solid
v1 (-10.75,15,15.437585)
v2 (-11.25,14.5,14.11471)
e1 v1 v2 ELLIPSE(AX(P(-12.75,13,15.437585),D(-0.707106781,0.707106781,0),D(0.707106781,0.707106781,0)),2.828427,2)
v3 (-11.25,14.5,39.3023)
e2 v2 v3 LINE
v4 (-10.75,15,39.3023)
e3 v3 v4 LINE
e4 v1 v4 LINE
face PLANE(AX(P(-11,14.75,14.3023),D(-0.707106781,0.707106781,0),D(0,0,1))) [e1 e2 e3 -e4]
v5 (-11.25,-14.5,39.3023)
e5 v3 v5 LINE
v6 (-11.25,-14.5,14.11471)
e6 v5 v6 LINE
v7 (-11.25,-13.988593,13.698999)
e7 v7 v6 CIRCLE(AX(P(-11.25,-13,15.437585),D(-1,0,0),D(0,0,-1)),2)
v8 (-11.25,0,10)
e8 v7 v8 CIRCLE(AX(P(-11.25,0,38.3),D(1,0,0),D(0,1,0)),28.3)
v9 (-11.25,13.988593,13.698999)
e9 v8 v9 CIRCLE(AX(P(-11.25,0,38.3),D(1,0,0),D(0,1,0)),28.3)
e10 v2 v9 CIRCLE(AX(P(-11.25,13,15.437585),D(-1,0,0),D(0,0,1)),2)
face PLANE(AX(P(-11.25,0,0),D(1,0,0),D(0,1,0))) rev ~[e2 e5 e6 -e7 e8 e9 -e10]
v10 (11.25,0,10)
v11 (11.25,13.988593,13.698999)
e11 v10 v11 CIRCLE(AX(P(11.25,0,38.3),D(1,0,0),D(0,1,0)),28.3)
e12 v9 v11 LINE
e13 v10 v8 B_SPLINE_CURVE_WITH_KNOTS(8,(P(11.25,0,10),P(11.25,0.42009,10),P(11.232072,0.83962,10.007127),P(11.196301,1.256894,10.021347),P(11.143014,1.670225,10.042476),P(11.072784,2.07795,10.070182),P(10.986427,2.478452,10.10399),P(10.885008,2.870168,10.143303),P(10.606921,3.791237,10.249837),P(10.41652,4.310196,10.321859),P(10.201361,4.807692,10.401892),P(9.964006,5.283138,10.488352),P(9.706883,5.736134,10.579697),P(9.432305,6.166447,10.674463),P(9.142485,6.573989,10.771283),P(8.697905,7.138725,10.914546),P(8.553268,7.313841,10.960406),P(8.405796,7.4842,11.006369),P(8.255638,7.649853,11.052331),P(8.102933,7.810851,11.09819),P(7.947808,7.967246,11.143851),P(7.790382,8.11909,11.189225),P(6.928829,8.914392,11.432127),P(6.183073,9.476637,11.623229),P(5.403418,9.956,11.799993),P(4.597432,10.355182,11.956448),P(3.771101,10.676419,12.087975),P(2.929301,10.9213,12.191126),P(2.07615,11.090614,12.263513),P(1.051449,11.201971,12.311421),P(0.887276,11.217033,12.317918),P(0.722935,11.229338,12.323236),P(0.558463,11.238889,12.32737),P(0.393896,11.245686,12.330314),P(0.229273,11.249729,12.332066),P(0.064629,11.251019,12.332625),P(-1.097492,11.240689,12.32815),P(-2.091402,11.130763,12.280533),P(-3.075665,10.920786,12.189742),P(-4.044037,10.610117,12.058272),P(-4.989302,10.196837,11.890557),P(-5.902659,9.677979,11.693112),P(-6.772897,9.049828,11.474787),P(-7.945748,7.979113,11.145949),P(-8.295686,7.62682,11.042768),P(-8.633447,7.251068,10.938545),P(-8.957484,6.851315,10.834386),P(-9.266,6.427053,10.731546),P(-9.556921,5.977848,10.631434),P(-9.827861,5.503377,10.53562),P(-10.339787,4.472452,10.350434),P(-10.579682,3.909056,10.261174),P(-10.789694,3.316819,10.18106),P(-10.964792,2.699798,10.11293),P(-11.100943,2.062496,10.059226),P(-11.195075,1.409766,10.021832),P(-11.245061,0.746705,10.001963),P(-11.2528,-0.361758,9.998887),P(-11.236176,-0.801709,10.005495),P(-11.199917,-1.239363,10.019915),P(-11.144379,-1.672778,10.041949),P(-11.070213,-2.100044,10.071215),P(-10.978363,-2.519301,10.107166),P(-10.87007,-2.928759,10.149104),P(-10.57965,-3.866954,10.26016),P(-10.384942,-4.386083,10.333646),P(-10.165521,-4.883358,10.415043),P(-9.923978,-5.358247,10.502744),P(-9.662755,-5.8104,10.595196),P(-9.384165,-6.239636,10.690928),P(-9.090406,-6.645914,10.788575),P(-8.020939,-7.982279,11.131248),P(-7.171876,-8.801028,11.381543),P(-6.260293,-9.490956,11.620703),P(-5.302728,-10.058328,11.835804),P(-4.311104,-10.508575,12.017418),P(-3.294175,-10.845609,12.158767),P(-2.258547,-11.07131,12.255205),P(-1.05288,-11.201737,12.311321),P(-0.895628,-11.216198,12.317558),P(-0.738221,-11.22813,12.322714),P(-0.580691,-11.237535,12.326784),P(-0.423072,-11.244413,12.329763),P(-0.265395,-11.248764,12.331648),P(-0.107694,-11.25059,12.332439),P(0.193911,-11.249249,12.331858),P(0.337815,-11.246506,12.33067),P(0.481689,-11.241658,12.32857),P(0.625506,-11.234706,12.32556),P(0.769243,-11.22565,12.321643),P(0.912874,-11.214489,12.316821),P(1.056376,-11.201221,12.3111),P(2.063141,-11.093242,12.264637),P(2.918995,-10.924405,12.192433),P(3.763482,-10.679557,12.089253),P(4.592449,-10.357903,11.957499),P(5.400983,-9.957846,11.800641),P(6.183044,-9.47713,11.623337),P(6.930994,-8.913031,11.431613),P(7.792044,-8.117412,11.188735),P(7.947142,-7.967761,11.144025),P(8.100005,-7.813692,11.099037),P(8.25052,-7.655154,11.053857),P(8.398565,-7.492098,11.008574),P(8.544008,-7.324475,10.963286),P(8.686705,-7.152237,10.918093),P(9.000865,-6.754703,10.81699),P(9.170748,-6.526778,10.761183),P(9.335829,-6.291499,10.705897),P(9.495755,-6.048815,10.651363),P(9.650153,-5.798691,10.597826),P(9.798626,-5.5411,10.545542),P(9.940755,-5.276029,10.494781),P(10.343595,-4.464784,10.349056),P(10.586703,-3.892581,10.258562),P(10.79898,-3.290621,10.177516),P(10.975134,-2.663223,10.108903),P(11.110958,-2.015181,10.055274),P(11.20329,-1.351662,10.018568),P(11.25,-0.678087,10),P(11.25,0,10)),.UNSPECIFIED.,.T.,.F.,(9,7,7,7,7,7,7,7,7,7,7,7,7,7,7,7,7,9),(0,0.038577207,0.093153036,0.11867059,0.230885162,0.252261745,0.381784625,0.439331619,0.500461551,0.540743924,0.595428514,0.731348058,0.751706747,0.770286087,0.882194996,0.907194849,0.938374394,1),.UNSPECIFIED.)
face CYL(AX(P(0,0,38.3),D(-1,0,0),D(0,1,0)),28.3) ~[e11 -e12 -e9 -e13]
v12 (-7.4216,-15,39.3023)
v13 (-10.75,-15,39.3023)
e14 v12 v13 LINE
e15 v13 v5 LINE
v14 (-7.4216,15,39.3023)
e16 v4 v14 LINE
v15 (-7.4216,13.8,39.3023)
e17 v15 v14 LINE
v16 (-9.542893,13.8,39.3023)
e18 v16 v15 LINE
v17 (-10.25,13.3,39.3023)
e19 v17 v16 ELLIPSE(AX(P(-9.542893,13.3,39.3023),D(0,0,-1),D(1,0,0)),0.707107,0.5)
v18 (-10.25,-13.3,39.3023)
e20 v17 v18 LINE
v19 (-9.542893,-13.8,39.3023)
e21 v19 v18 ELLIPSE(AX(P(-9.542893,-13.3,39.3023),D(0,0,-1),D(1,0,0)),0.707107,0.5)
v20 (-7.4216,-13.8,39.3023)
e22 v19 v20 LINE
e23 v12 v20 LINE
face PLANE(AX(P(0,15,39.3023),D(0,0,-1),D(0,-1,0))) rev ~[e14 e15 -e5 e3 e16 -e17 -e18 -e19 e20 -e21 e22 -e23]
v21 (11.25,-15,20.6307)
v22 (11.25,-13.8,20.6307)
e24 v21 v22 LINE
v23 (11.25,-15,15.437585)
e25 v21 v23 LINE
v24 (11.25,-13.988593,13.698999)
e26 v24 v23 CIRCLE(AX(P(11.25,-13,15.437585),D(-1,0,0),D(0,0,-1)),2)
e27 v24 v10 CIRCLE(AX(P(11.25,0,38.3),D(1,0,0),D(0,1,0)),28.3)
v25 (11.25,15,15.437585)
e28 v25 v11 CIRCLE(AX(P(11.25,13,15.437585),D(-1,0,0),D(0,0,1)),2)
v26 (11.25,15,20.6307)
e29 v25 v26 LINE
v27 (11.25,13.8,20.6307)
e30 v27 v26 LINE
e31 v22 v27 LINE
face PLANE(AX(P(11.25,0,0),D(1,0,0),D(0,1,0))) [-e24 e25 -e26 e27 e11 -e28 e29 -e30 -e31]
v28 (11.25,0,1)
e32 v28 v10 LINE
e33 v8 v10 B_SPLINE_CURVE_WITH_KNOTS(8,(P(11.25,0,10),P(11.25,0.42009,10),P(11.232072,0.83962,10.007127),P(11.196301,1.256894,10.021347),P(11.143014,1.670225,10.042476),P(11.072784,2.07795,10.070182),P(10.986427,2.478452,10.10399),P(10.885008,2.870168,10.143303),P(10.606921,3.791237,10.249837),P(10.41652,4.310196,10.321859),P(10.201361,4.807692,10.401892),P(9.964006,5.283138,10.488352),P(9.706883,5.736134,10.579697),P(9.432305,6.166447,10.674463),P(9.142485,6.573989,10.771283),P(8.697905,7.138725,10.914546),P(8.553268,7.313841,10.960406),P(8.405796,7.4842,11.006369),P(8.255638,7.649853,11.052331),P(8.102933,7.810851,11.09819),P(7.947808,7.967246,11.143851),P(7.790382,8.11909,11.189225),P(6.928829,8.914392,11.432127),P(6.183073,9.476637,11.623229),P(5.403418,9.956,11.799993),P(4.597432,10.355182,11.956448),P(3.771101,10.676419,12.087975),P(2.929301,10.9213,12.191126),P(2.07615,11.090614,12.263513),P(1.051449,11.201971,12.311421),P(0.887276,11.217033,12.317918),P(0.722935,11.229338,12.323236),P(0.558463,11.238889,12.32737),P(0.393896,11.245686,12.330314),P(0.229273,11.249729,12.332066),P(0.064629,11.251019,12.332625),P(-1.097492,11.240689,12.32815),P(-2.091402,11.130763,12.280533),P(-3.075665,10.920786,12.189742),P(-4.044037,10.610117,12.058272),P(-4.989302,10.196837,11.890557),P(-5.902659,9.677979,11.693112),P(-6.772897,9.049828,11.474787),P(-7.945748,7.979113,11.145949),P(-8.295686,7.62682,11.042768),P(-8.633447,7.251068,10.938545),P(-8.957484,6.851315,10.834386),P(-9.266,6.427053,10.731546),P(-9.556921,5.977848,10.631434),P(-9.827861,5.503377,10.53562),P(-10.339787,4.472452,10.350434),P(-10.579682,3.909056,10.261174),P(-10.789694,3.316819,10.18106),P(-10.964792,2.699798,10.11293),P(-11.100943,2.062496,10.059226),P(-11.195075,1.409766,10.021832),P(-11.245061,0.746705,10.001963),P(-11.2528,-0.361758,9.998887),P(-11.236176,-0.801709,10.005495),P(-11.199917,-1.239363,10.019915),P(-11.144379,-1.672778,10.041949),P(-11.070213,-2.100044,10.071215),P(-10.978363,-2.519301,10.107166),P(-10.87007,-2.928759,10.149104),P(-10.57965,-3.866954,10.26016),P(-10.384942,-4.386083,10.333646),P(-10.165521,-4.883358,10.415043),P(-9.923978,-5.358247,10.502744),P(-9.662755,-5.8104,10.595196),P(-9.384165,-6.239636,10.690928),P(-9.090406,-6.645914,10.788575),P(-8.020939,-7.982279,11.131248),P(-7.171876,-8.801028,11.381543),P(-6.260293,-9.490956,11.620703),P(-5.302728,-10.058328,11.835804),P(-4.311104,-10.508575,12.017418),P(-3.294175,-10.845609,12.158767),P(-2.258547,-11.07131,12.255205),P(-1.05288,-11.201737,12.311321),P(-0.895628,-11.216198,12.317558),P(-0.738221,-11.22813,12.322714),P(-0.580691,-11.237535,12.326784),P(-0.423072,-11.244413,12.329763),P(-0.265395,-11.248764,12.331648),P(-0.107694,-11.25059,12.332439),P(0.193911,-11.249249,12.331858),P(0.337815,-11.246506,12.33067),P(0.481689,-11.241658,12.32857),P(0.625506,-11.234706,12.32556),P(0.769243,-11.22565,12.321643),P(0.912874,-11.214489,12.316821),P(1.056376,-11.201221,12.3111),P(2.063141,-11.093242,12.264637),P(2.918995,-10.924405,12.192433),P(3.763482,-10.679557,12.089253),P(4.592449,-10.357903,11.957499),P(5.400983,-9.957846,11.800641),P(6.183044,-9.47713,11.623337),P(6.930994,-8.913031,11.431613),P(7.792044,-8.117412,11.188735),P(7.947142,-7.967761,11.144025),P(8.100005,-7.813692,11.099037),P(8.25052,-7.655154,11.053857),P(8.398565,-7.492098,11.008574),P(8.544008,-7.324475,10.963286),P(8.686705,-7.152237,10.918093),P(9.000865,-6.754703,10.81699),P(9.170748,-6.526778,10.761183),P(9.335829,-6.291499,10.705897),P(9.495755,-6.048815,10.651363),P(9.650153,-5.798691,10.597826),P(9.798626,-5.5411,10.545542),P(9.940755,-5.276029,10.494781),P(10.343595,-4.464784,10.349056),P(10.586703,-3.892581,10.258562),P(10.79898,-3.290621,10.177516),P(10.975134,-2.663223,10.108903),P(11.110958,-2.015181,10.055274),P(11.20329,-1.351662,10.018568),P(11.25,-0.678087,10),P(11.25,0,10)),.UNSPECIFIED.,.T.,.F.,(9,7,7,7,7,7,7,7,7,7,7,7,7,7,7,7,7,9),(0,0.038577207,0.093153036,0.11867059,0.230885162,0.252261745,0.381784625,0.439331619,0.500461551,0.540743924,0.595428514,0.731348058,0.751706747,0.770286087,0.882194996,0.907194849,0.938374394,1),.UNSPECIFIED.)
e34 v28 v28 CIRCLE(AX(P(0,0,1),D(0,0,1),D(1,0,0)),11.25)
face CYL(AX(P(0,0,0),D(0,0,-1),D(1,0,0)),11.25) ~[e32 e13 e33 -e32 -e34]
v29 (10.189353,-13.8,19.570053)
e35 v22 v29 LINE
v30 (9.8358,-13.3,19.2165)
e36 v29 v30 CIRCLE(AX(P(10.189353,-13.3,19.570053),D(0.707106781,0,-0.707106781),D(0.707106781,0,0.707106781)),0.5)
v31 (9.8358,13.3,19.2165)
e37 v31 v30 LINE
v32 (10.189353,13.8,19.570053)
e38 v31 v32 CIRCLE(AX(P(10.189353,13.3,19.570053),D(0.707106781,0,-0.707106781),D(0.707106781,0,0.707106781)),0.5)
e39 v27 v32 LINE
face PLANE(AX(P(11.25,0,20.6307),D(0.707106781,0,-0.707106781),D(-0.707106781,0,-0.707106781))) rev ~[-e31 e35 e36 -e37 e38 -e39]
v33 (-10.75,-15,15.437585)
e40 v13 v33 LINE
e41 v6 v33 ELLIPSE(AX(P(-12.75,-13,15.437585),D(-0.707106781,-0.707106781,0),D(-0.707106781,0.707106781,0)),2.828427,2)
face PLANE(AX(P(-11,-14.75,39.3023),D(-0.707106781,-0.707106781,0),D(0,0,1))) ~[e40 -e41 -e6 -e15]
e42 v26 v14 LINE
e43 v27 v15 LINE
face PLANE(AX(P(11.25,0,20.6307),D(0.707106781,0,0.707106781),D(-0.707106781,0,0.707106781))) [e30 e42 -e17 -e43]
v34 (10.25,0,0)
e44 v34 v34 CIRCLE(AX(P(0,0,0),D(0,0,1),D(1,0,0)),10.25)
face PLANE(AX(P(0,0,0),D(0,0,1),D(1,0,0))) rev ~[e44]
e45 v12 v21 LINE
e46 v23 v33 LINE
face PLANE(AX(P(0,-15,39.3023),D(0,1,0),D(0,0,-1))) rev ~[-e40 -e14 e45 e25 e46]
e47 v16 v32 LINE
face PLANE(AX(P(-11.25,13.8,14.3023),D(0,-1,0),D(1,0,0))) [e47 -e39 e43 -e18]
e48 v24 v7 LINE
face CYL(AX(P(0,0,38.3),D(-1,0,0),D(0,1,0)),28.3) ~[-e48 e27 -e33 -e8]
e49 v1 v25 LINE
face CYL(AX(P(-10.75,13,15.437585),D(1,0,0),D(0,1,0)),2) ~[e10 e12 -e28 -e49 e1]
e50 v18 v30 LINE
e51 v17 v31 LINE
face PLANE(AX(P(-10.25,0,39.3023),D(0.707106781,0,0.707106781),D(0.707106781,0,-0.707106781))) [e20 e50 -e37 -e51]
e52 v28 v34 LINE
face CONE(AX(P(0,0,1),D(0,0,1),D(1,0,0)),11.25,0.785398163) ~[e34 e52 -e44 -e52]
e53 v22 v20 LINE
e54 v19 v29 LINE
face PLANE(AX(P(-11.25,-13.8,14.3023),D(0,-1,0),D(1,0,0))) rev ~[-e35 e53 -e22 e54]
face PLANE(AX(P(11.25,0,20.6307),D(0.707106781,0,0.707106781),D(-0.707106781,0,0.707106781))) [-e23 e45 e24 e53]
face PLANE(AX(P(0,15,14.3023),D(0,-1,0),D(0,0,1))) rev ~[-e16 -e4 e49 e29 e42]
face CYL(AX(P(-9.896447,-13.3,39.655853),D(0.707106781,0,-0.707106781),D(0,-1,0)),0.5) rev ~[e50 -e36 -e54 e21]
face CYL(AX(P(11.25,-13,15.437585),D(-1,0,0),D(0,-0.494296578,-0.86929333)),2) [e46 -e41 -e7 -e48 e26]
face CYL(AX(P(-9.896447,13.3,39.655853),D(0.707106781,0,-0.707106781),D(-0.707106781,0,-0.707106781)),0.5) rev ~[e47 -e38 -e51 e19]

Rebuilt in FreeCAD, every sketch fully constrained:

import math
import FreeCAD as App
import Part
import Sketcher
from FreeCAD import Vector
Q = App.Units.Quantity


def edges_at(feature, points):
    """Names of the edges that pass closest to the given points."""
    edges = feature.Shape.Edges
    near = lambda p: min(range(len(edges)), key=lambda i: edges[i].distToShape(Part.Vertex(*p))[0])
    return sorted({f"Edge{near(p) + 1}" for p in points})

doc = App.newDocument("Part")
body = doc.addObject("PartDesign::Body", "Body")

# Sketch on YZ plane
sketch1 = doc.addObject("Sketcher::SketchObject", "Sketch")
body.addObject(sketch1)
sketch1.AttachmentSupport = (doc.YZ_Plane, [""])
sketch1.MapMode = "FlatFace"
sketch1.addGeometry([
    Part.ArcOfCircle(Part.Circle(Vector(0, 38, 0), Vector(0, 0, 1), 28), math.radians(-122), math.radians(-58)),
    Part.LineSegment(Vector(15, 14, 0), Vector(15, 39, 0)),
    Part.LineSegment(Vector(15, 39, 0), Vector(-15, 39, 0)),
    Part.LineSegment(Vector(-15, 39, 0), Vector(-15, 14, 0)),
], False)
sketch1.addConstraint([
    Sketcher.Constraint("Coincident", 0, 2, 1, 1),
    Sketcher.Constraint("Coincident", 1, 2, 2, 1),
    Sketcher.Constraint("Coincident", 2, 2, 3, 1),
    Sketcher.Constraint("Coincident", 3, 2, 0, 1),
    Sketcher.Constraint("Vertical", 1),
    Sketcher.Constraint("Horizontal", 2),
    Sketcher.Constraint("Vertical", 3),
    Sketcher.Constraint("Symmetric", 0, 2, 3, 2, -2),
    Sketcher.Constraint("Radius", 0, 28.3),
    Sketcher.Constraint("DistanceX", 2, 2, 2, 1, 30.0),
    Sketcher.Constraint("DistanceY", 1, 1, 1, 2, 25.0),
    Sketcher.Constraint("DistanceY", -1, 1, 0, 3, 38.3),
])
pad1 = doc.addObject("PartDesign::Pad", "Pad")
body.addObject(pad1)
pad1.Profile = sketch1
pad1.Length = 22.5
pad1.Midplane = True

# Sketch on XY plane
sketch2 = doc.addObject("Sketcher::SketchObject", "Sketch001")
body.addObject(sketch2)
sketch2.AttachmentSupport = (doc.XY_Plane, [""])
sketch2.MapMode = "FlatFace"
sketch2.addGeometry(Part.Circle(Vector(0, 0, 0), Vector(0, 0, 1), 11), False)
sketch2.addConstraint([
    Sketcher.Constraint("Coincident", 0, 3, -1, 1),
    Sketcher.Constraint("Diameter", 0, 22.5),
])
pad2 = doc.addObject("PartDesign::Pad", "Pad001")
body.addObject(pad2)
pad2.Profile = sketch2
pad2.Type = "UpToFirst"

# Sketch on XZ plane
sketch3 = doc.addObject("Sketcher::SketchObject", "Sketch002")
body.addObject(sketch3)
sketch3.AttachmentSupport = (doc.XZ_Plane, [""])
sketch3.MapMode = "FlatFace"
sketch3.addGeometry([
    Part.LineSegment(Vector(11.2, 39.3, 0), Vector(-10.2, 39.3, 0)),
    Part.LineSegment(Vector(-10.2, 39.3, 0), Vector(9.8, 19.2, 0)),
    Part.LineSegment(Vector(9.8, 19.2, 0), Vector(11.2, 20.6, 0)),
    Part.LineSegment(Vector(11.2, 20.6, 0), Vector(11.2, 39.3, 0)),
], False)
sketch3.addConstraint([
    Sketcher.Constraint("Coincident", 0, 2, 1, 1),
    Sketcher.Constraint("Coincident", 1, 2, 2, 1),
    Sketcher.Constraint("Coincident", 2, 2, 3, 1),
    Sketcher.Constraint("Coincident", 3, 2, 0, 1),
    Sketcher.Constraint("Horizontal", 0),
    Sketcher.Constraint("Vertical", 3),
    Sketcher.Constraint("Perpendicular", 1, 2),
    Sketcher.Constraint("Angle", 1, Q("-45 deg")),
    Sketcher.Constraint("Distance", 2, 2.0),
    Sketcher.Constraint("DistanceX", 0, 2, 0, 1, 21.5),
    Sketcher.Constraint("DistanceX", 0, 2, -1, 1, 10.25),
    Sketcher.Constraint("DistanceY", -1, 1, 0, 2, 39.3023),
])
pocket1 = doc.addObject("PartDesign::Pocket", "Pocket")
body.addObject(pocket1)
pocket1.Profile = sketch3
pocket1.Length = 27.6
pocket1.Midplane = True

# Sketch on XZ plane
sketch4 = doc.addObject("Sketcher::SketchObject", "Sketch003")
body.addObject(sketch4)
sketch4.AttachmentSupport = (doc.XZ_Plane, [""])
sketch4.MapMode = "FlatFace"
sketch4.addGeometry([
    Part.LineSegment(Vector(11, 39, 0), Vector(11, 21, 0)),
    Part.LineSegment(Vector(11, 21, 0), Vector(-7, 39, 0)),
    Part.LineSegment(Vector(-7, 39, 0), Vector(11, 39, 0)),
], False)
sketch4.addConstraint([
    Sketcher.Constraint("Coincident", 0, 2, 1, 1),
    Sketcher.Constraint("Coincident", 1, 2, 2, 1),
    Sketcher.Constraint("Coincident", 2, 2, 0, 1),
    Sketcher.Constraint("Vertical", 0),
    Sketcher.Constraint("Horizontal", 2),
    Sketcher.Constraint("Equal", 2, 0),
    Sketcher.Constraint("DistanceX", -1, 1, 0, 2, 11.25),
    Sketcher.Constraint("DistanceX", 2, 1, 2, 2, 18.6716),
    Sketcher.Constraint("DistanceY", -1, 1, 0, 2, 20.6307),
])
pocket2 = doc.addObject("PartDesign::Pocket", "Pocket001")
body.addObject(pocket2)
pocket2.Profile = sketch4
pocket2.Type = "ThroughAll"
pocket2.Midplane = True
doc.recompute()

fillet = doc.addObject("PartDesign::Fillet", "Fillet")
body.addObject(fillet)
fillet.Base = (pocket2, edges_at(pocket2, [(-0.207, 13.8, 29.259), (-0.207, -13.8, 29.259)]))
fillet.Radius = 0.5
doc.recompute()

chamfer = doc.addObject("PartDesign::Chamfer", "Chamfer")
body.addObject(chamfer)
chamfer.Base = (fillet, edges_at(fillet, [(-11.25, 0, 0)]))
chamfer.Size = 1
doc.recompute()

chamfer2 = doc.addObject("PartDesign::Chamfer", "Chamfer001")
body.addObject(chamfer2)
chamfer2.Base = (chamfer, edges_at(chamfer, [(-11.25, 15, 26.802), (-11.25, -15, 26.802)]))
chamfer2.Size = 0.5
doc.recompute()

fillet2 = doc.addObject("PartDesign::Fillet", "Fillet001")
body.addObject(fillet2)
fillet2.Base = (chamfer2, edges_at(chamfer2, [(0.25, -15, 14.302), (0.25, 15, 14.302)]))
fillet2.Radius = 2

doc.recompute()
